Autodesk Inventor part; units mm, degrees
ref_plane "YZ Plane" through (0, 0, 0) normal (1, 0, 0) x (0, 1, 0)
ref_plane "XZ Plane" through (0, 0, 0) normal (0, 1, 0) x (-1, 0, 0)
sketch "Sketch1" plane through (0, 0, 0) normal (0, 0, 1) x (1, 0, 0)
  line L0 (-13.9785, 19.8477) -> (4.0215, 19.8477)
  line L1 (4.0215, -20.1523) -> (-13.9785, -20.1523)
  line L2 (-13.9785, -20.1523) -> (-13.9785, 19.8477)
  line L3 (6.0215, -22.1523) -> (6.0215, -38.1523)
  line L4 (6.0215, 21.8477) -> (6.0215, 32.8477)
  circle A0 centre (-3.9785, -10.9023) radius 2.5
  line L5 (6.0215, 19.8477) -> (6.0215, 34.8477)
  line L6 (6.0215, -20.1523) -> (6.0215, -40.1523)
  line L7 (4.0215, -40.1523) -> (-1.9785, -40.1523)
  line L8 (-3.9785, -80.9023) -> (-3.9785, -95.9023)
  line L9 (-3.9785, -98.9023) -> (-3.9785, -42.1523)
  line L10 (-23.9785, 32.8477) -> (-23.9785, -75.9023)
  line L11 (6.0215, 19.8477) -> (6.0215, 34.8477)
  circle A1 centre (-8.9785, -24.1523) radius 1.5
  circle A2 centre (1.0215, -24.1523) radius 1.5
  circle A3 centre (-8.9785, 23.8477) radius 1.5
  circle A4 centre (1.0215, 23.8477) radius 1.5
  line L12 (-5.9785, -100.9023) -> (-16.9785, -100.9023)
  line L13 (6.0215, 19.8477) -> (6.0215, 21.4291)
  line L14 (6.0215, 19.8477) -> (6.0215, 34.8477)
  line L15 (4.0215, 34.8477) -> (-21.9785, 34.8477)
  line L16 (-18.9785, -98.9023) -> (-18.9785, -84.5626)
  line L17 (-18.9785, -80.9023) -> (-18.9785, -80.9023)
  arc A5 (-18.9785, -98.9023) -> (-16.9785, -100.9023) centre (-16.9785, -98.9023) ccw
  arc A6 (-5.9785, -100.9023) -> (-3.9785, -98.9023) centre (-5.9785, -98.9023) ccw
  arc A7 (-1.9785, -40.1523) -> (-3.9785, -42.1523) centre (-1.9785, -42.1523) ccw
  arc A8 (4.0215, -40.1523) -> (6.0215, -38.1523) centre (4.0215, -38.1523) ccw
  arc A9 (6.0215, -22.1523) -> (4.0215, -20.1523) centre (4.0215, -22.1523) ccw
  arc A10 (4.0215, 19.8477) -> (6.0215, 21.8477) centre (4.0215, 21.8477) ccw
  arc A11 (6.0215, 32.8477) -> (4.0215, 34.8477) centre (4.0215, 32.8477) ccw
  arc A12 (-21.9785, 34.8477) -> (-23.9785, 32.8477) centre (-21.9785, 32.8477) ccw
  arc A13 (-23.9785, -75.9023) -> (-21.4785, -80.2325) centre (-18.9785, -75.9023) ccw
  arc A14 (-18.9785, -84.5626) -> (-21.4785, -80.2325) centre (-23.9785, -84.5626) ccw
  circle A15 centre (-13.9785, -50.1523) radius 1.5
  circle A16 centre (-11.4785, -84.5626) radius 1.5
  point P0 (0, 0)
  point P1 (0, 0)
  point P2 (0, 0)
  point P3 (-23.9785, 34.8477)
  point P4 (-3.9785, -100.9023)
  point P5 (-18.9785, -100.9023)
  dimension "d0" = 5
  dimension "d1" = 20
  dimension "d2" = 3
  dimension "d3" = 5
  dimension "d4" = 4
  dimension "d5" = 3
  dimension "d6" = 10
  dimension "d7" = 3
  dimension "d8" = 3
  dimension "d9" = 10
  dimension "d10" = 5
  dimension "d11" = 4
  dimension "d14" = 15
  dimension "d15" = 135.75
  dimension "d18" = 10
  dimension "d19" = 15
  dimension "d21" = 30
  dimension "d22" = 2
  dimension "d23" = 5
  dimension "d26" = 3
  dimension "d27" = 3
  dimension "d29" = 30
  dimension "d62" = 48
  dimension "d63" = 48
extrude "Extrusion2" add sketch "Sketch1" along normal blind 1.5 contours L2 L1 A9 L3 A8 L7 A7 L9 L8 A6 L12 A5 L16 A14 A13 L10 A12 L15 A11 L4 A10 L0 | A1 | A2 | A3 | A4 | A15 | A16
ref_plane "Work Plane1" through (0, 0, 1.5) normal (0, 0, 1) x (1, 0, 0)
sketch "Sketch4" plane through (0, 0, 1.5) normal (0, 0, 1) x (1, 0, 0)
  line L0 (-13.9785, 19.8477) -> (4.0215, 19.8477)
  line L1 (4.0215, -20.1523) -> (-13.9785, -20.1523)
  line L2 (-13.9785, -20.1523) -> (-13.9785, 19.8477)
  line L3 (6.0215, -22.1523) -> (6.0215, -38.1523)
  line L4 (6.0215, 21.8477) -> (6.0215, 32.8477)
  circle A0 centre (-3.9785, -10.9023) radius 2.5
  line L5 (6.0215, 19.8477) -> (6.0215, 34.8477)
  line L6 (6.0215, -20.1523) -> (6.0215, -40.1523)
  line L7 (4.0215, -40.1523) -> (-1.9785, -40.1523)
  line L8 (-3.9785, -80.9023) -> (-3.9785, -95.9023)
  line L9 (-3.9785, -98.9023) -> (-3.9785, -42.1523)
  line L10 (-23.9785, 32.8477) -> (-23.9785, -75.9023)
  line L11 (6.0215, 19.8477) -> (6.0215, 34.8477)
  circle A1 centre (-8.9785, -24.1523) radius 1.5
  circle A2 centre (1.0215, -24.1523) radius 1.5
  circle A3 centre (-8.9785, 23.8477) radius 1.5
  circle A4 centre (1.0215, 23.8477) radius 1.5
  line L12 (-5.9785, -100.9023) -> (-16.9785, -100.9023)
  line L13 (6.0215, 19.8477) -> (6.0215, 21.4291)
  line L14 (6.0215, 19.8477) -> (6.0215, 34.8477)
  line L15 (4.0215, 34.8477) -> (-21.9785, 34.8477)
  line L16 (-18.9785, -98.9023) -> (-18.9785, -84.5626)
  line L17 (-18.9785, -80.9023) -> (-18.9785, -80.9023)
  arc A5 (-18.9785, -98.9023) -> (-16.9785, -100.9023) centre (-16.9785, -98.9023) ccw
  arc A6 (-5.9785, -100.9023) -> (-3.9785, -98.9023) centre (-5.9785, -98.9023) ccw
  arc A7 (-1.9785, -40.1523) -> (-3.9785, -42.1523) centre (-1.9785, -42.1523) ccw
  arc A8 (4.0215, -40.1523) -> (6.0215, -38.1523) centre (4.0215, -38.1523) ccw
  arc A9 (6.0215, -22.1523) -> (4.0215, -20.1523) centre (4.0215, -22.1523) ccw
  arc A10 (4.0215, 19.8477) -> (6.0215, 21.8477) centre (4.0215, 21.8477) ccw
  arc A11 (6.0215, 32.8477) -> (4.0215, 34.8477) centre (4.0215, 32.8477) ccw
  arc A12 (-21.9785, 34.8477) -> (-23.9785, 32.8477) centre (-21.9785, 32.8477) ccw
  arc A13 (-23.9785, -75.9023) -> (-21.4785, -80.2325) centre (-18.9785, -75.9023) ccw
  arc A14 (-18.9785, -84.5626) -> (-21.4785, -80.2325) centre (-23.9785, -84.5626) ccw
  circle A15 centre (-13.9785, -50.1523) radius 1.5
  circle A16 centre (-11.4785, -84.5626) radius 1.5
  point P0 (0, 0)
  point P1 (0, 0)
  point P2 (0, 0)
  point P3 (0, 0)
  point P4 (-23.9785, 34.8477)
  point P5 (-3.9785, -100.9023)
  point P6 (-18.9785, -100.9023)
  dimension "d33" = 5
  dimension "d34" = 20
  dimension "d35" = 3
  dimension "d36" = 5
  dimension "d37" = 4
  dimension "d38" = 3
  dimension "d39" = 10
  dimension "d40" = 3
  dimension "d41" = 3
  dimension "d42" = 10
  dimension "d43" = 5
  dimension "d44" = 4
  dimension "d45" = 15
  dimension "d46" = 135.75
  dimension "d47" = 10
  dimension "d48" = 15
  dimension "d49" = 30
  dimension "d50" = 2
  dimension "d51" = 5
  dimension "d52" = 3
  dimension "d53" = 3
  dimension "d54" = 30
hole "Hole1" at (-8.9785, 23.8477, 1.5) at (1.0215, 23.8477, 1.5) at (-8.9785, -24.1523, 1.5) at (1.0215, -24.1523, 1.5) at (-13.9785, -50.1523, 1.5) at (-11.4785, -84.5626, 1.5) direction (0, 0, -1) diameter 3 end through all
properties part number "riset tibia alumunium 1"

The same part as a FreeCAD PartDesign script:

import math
import FreeCAD as App
import Part
import Sketcher

doc = App.newDocument("Part")
body = doc.addObject("PartDesign::Body", "Body")

# Sketch on XY plane
sketch1 = body.newObject("Sketcher::SketchObject", "Sketch")
sketch1.AttachmentSupport = (doc.getObject("XY_Plane"), [""])
sketch1.MapMode = "FlatFace"
sketch1.addGeometry([
    Part.LineSegment(App.Vector(-13.9785, -20.1523, 0), App.Vector(-13.9785, 19.8477, 0)),  # 0
    Part.LineSegment(App.Vector(-13.9785, 19.8477, 0), App.Vector(4.0215, 19.8477, 0)),  # 1
    Part.ArcOfCircle(Part.Circle(App.Vector(4.0215, 21.8477, 0), App.Vector(0, 0, 1), 2), math.radians(-90), math.radians(0)),  # 2
    Part.LineSegment(App.Vector(6.0215, 21.8477, 0), App.Vector(6.0215, 32.8477, 0)),  # 3
    Part.ArcOfCircle(Part.Circle(App.Vector(4.0215, 32.8477, 0), App.Vector(0, 0, 1), 2), math.radians(0), math.radians(90)),  # 4
    Part.LineSegment(App.Vector(4.0215, 34.8477, 0), App.Vector(-21.9785, 34.8477, 0)),  # 5
    Part.ArcOfCircle(Part.Circle(App.Vector(-21.9785, 32.8477, 0), App.Vector(0, 0, 1), 2), math.radians(90), math.radians(180)),  # 6
    Part.LineSegment(App.Vector(-23.9785, 32.8477, 0), App.Vector(-23.9785, -75.9023, 0)),  # 7
    Part.ArcOfCircle(Part.Circle(App.Vector(-18.9785, -75.9023, 0), App.Vector(0, 0, 1), 5), math.radians(180), math.radians(240.000418)),  # 8
    Part.ArcOfCircle(Part.Circle(App.Vector(-23.9785, -84.5626, 0), App.Vector(0, 0, 1), 5), math.radians(0), math.radians(59.999845)),  # 9
    Part.LineSegment(App.Vector(-18.9785, -84.5626, 0), App.Vector(-18.9785, -98.9023, 0)),  # 10
    Part.ArcOfCircle(Part.Circle(App.Vector(-16.9785, -98.9023, 0), App.Vector(0, 0, 1), 2), math.radians(180), math.radians(270)),  # 11
    Part.LineSegment(App.Vector(-16.9785, -100.9023, 0), App.Vector(-5.9785, -100.9023, 0)),  # 12
    Part.ArcOfCircle(Part.Circle(App.Vector(-5.9785, -98.9023, 0), App.Vector(0, 0, 1), 2), math.radians(-90), math.radians(0)),  # 13
    Part.LineSegment(App.Vector(-3.9785, -98.9023, 0), App.Vector(-3.9785, -42.1523, 0)),  # 14
    Part.ArcOfCircle(Part.Circle(App.Vector(-1.9785, -42.1523, 0), App.Vector(0, 0, 1), 2), math.radians(90), math.radians(180)),  # 15
    Part.LineSegment(App.Vector(-1.9785, -40.1523, 0), App.Vector(4.0215, -40.1523, 0)),  # 16
    Part.ArcOfCircle(Part.Circle(App.Vector(4.0215, -38.1523, 0), App.Vector(0, 0, 1), 2), math.radians(-90), math.radians(0)),  # 17
    Part.LineSegment(App.Vector(6.0215, -38.1523, 0), App.Vector(6.0215, -22.1523, 0)),  # 18
    Part.ArcOfCircle(Part.Circle(App.Vector(4.0215, -22.1523, 0), App.Vector(0, 0, 1), 2), math.radians(0), math.radians(90)),  # 19
    Part.LineSegment(App.Vector(4.0215, -20.1523, 0), App.Vector(-13.9785, -20.1523, 0)),  # 20
], False)
sketch1.addConstraint([
    Sketcher.Constraint("Coincident", 0, 2, 1, 1),
    Sketcher.Constraint("Tangent", 1, 2, 2, 1),
    Sketcher.Constraint("Tangent", 2, 2, 3, 1),
    Sketcher.Constraint("Tangent", 3, 2, 4, 1),
    Sketcher.Constraint("Tangent", 4, 2, 5, 1),
    Sketcher.Constraint("Tangent", 5, 2, 6, 1),
    Sketcher.Constraint("Tangent", 6, 2, 7, 1),
    Sketcher.Constraint("Tangent", 7, 2, 8, 1),
    Sketcher.Constraint("Tangent", 8, 2, 9, 2),
    Sketcher.Constraint("Tangent", 9, 1, 10, 1),
    Sketcher.Constraint("Tangent", 10, 2, 11, 1),
    Sketcher.Constraint("Tangent", 11, 2, 12, 1),
    Sketcher.Constraint("Tangent", 12, 2, 13, 1),
    Sketcher.Constraint("Tangent", 13, 2, 14, 1),
    Sketcher.Constraint("Tangent", 14, 2, 15, 2),
    Sketcher.Constraint("Tangent", 15, 1, 16, 1),
    Sketcher.Constraint("Tangent", 16, 2, 17, 1),
    Sketcher.Constraint("Tangent", 17, 2, 18, 1),
    Sketcher.Constraint("Tangent", 18, 2, 19, 1),
    Sketcher.Constraint("Tangent", 19, 2, 20, 1),
    Sketcher.Constraint("Coincident", 20, 2, 0, 1),
    Sketcher.Constraint("Vertical", 0),
    Sketcher.Constraint("Horizontal", 1),
    Sketcher.Constraint("Vertical", 3),
    Sketcher.Constraint("Horizontal", 5),
    Sketcher.Constraint("Vertical", 7),
    Sketcher.Constraint("Vertical", 10),
    Sketcher.Constraint("Horizontal", 12),
    Sketcher.Constraint("Vertical", 14),
    Sketcher.Constraint("Horizontal", 16),
    Sketcher.Constraint("Vertical", 18),
    Sketcher.Constraint("Horizontal", 20),
    Sketcher.Constraint("Equal", 2, 4),
    Sketcher.Constraint("Equal", 4, 6),
    Sketcher.Constraint("Equal", 8, 9),
    Sketcher.Constraint("Equal", 6, 11),
    Sketcher.Constraint("Equal", 11, 13),
    Sketcher.Constraint("Equal", 13, 15),
    Sketcher.Constraint("Equal", 15, 17),
    Sketcher.Constraint("Equal", 17, 19),
    Sketcher.Constraint("Vertical", 4, 3, 17, 3),
    Sketcher.Constraint("Vertical", 9, 3, 6, 2),
    Sketcher.Constraint("Equal", 12, 3),
    Sketcher.Constraint("Radius", 2, 2.0),
    Sketcher.Constraint("Radius", 8, 5.0),
    Sketcher.Constraint("DistanceX", 13, 3, 2, 3, 10.0),
    Sketcher.Constraint("DistanceX", 11, 3, 15, 3, 15.0),
    Sketcher.Constraint("DistanceY", 15, 3, 19, 3, 20.0),
    Sketcher.Constraint("DistanceX", 0, 2, 2, 2, 20.0),
    Sketcher.Constraint("DistanceY", 0, 1, 0, 2, 40.0),
    Sketcher.Constraint("DistanceY", 11, 3, 8, 3, 23.0),
    Sketcher.Constraint("DistanceY", 7, 2, 7, 1, 108.75),
    Sketcher.Constraint("DistanceX", -1, 1, 2, 3, 4.0215),
    Sketcher.Constraint("DistanceY", -1, 1, 2, 3, 21.8477),
])
pad1 = body.newObject("PartDesign::Pad", "Pad")
pad1.Profile = sketch1
pad1.Length = 1.5

# Sketch on XY plane
sketch2 = body.newObject("Sketcher::SketchObject", "Sketch001")
sketch2.AttachmentSupport = (doc.getObject("XY_Plane"), [""])
sketch2.MapMode = "FlatFace"
sketch2.AttachmentOffset = App.Placement(App.Vector(0, 0, 1.5), App.Rotation())
sketch2.addGeometry([
    Part.Circle(App.Vector(-8.9785, 23.8477, 0), App.Vector(0, 0, 1), 1.5),  # 0
    Part.Circle(App.Vector(1.0215, 23.8477, 0), App.Vector(0, 0, 1), 1.5),  # 1
    Part.Circle(App.Vector(-8.9785, -24.1523, 0), App.Vector(0, 0, 1), 1.5),  # 2
    Part.Circle(App.Vector(1.0215, -24.1523, 0), App.Vector(0, 0, 1), 1.5),  # 3
    Part.Circle(App.Vector(-13.9785, -50.1523, 0), App.Vector(0, 0, 1), 1.5),  # 4
    Part.Circle(App.Vector(-11.4785, -84.5626, 0), App.Vector(0, 0, 1), 1.5),  # 5
], False)
sketch2.addConstraint([
    Sketcher.Constraint("Equal", 0, 1),
    Sketcher.Constraint("Equal", 1, 2),
    Sketcher.Constraint("Equal", 2, 3),
    Sketcher.Constraint("Equal", 3, 4),
    Sketcher.Constraint("Equal", 4, 5),
    Sketcher.Constraint("Horizontal", 0, 3, 1, 3),
    Sketcher.Constraint("Horizontal", 2, 3, 3, 3),
    Sketcher.Constraint("Vertical", 0, 3, 2, 3),
    Sketcher.Constraint("Vertical", 1, 3, 3, 3),
    Sketcher.Constraint("Diameter", 0, 3.0),
    Sketcher.Constraint("DistanceX", 0, 3, 1, 3, 10.0),
    Sketcher.Constraint("DistanceY", 2, 3, 0, 3, 48.0),
    Sketcher.Constraint("DistanceX", 4, 3, 2, 3, 5.0),
    Sketcher.Constraint("DistanceY", 4, 3, 2, 3, 26.0),
    Sketcher.Constraint("DistanceX", 4, 3, 5, 3, 2.5),
    Sketcher.Constraint("DistanceX", 0, 3, -1, 1, 8.9785),
    Sketcher.Constraint("DistanceY", -1, 1, 0, 3, 23.8477),
    Sketcher.Constraint("DistanceY", 5, 3, -1, 1, 84.5626),
])
doc.recompute()
hole = body.newObject("PartDesign::Hole", "Hole")
hole.Profile = sketch2
hole.ThreadType = "None"
hole.Diameter = 3
hole.DepthType = "ThroughAll"

doc.recompute()
